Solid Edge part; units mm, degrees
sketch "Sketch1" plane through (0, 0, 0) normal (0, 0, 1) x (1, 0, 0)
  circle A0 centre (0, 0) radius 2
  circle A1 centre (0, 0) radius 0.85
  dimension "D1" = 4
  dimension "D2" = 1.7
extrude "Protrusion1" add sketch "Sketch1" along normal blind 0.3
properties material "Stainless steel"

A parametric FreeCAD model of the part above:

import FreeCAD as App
import Part
import Sketcher

doc = App.newDocument("Part")
body = doc.addObject("PartDesign::Body", "Body")

sketch1 = body.newObject("Sketcher::SketchObject", "Sketch")
sketch1.AttachmentSupport = (doc.getObject("XY_Plane"), [""])
sketch1.MapMode = "FlatFace"
sketch1.addGeometry([
    Part.Circle(App.Vector(0, 0, 0), App.Vector(0, 0, 1), 2),
    Part.Circle(App.Vector(0, 0, 0), App.Vector(0, 0, 1), 0.8),
], False)
sketch1.addConstraint([
    Sketcher.Constraint("Coincident", 0, 3, -1, 1),
    Sketcher.Constraint("Coincident", 1, 3, -1, 1),
    Sketcher.Constraint("Diameter", 0, 4.0),
    Sketcher.Constraint("Diameter", 1, 1.7),
])
pad1 = body.newObject("PartDesign::Pad", "Pad")
pad1.Profile = sketch1
pad1.Length = 0.3

doc.recompute()
